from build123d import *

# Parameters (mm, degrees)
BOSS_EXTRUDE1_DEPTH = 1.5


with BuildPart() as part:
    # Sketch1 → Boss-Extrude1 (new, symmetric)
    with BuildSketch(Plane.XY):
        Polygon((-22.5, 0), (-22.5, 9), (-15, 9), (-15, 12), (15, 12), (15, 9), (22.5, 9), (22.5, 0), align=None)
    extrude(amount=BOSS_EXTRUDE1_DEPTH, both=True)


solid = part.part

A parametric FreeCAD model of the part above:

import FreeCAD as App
import Part
import Sketcher
from FreeCAD import Vector
Q = App.Units.Quantity


def add_polygon(sketch, points):
    """Adds a closed chain of lines whose ends are joined by coincident constraints."""
    first, n = sketch.GeometryCount, len(points)
    for a, b in zip(points, points[1:] + points[:1]):
        sketch.addGeometry(Part.LineSegment(App.Vector(*a, 0), App.Vector(*b, 0)), False)
    for i in range(n):
        sketch.addConstraint(Sketcher.Constraint("Coincident", first + i, 2, first + (i + 1) % n, 1))

doc = App.newDocument("Part")
body = doc.addObject("PartDesign::Body", "Body")

sketch1 = body.newObject("Sketcher::SketchObject", "Sketch")
sketch1.AttachmentSupport = (doc.getObject("XY_Plane"), [""])
sketch1.MapMode = "FlatFace"
add_polygon(sketch1, [(-22.5, 9), (-22.5, 0), (22.5, 0), (22.5, 9), (15, 9), (15, 12), (-15, 12), (-15, 9)])
sketch1.addConstraint([
    Sketcher.Constraint("Vertical", 0),
    Sketcher.Constraint("Horizontal", 1),
    Sketcher.Constraint("Vertical", 2),
    Sketcher.Constraint("Horizontal", 3),
    Sketcher.Constraint("Vertical", 4),
    Sketcher.Constraint("Horizontal", 5),
    Sketcher.Constraint("Vertical", 6),
    Sketcher.Constraint("Horizontal", 7),
    Sketcher.Constraint("Symmetric", 0, 2, 1, 2, -1, 1),
    Sketcher.Constraint("Symmetric", 3, 2, 6, 2, -2),
    Sketcher.Constraint("DistanceX", 1, 1, 1, 2, Q("45 mm")),
    Sketcher.Constraint("DistanceX", 5, 2, 5, 1, Q("30 mm")),
    Sketcher.Constraint("DistanceY", 0, 2, 0, 1, Q("9 mm")),
    Sketcher.Constraint("DistanceY", 4, 1, 4, 2, Q("3 mm")),
])
pad1 = body.newObject("PartDesign::Pad", "Pad")
pad1.Profile = sketch1
pad1.Length = 3
pad1.Midplane = True

doc.recompute()
